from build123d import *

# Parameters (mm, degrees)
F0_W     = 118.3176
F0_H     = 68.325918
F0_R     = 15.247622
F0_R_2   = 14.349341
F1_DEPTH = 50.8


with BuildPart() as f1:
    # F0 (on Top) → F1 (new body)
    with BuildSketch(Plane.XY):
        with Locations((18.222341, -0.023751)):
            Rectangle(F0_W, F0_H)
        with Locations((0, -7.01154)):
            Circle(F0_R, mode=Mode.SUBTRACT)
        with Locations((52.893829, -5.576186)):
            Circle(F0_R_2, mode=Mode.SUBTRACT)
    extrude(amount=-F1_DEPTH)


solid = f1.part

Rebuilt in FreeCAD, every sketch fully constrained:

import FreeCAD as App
import Part
import Sketcher
Q = App.Units.Quantity

doc = App.newDocument("Part")
body = doc.addObject("PartDesign::Body", "Body")

# Sketch on XY plane
sketch1 = doc.addObject("Sketcher::SketchObject", "Sketch")
body.addObject(sketch1)
sketch1.AttachmentSupport = (doc.XY_Plane, [""])
sketch1.MapMode = "FlatFace"
sketch1.addGeometry(Part.LineSegment(App.Vector(-40.936459, 34.139208, 0), App.Vector(-40.936459, -34.18671, 0)), False)
sketch1.addGeometry(Part.LineSegment(App.Vector(-40.936459, -34.18671, 0), App.Vector(77.381141, -34.18671, 0)), False)
sketch1.addGeometry(Part.LineSegment(App.Vector(77.381141, -34.18671, 0), App.Vector(77.381141, 34.139208, 0)), False)
sketch1.addGeometry(Part.LineSegment(App.Vector(77.381141, 34.139208, 0), App.Vector(-40.936459, 34.139208, 0)), False)
sketch1.addGeometry(Part.Circle(App.Vector(0, -7.01154, 0), App.Vector(0, 0, 1), 15.247622), False)
sketch1.addGeometry(Part.Circle(App.Vector(52.893829, -5.576186, 0), App.Vector(0, 0, 1), 14.349341), False)
sketch1.addConstraint(Sketcher.Constraint("Coincident", 0, 2, 1, 1))
sketch1.addConstraint(Sketcher.Constraint("Coincident", 1, 2, 2, 1))
sketch1.addConstraint(Sketcher.Constraint("Coincident", 2, 2, 3, 1))
sketch1.addConstraint(Sketcher.Constraint("Coincident", 3, 2, 0, 1))
sketch1.addConstraint(Sketcher.Constraint("Vertical", 0))
sketch1.addConstraint(Sketcher.Constraint("Horizontal", 1))
sketch1.addConstraint(Sketcher.Constraint("Vertical", 2))
sketch1.addConstraint(Sketcher.Constraint("Horizontal", 3))
sketch1.addConstraint(Sketcher.Constraint("PointOnObject", 4, 3, -2))
sketch1.addConstraint(Sketcher.Constraint("Diameter", 4, Q("1.2006002 in")))
sketch1.addConstraint(Sketcher.Constraint("Diameter", 5, 28.698682))
sketch1.addConstraint(Sketcher.Constraint("DistanceX", 1, 1, 1, 2, 118.3176))
sketch1.addConstraint(Sketcher.Constraint("DistanceY", 0, 2, 0, 1, 68.325918))
sketch1.addConstraint(Sketcher.Constraint("DistanceY", 4, 3, -1, 1, 7.01154))
sketch1.addConstraint(Sketcher.Constraint("DistanceX", -1, 1, 5, 3, 52.893829))
sketch1.addConstraint(Sketcher.Constraint("DistanceX", 0, 2, -1, 1, 40.936459))
sketch1.addConstraint(Sketcher.Constraint("DistanceY", 0, 2, -1, 1, 34.18671))
sketch1.addConstraint(Sketcher.Constraint("DistanceY", 5, 3, -1, 1, 5.576186))
pad1 = doc.addObject("PartDesign::Pad", "Pad")
body.addObject(pad1)
pad1.Profile = sketch1
pad1.Length = Q("2 in")
pad1.Reversed = True

doc.recompute()
